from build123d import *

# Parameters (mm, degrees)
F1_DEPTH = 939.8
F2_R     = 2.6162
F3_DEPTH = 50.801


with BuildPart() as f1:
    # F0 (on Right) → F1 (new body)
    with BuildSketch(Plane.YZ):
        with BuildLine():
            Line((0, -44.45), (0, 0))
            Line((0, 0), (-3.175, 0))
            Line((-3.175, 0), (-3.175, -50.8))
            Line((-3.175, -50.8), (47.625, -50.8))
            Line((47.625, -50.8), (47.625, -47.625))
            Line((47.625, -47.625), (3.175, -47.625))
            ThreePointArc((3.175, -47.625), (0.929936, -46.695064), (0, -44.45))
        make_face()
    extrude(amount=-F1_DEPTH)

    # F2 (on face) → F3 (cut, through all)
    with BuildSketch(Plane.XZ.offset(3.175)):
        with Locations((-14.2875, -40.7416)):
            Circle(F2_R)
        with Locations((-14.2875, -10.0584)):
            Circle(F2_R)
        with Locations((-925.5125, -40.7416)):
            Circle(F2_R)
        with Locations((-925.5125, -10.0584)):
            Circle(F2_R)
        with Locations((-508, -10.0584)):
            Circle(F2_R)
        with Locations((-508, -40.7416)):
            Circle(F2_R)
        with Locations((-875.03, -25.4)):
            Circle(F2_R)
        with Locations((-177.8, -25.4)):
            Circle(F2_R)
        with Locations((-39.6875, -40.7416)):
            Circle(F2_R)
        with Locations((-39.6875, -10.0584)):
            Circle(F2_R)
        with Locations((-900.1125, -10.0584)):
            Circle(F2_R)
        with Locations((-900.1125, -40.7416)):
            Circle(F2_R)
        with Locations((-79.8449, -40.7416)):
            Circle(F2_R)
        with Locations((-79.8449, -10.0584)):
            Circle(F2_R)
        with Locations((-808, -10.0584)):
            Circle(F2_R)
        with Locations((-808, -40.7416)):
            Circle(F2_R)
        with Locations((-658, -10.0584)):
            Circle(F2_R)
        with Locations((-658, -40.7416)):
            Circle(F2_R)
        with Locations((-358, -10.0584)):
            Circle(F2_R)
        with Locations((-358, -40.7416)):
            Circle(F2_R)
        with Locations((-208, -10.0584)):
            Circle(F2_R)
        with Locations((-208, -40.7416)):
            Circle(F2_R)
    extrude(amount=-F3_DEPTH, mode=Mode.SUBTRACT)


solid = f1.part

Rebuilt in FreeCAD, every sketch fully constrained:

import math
import FreeCAD as App
import Part
import Sketcher
Q = App.Units.Quantity

doc = App.newDocument("Part")
body = doc.addObject("PartDesign::Body", "Body")

# Sketch on YZ plane
sketch1 = body.newObject("Sketcher::SketchObject", "Sketch")
sketch1.AttachmentSupport = (doc.getObject("YZ_Plane"), [""])
sketch1.MapMode = "FlatFace"
sketch1.addGeometry([
    Part.LineSegment(App.Vector(0, -44.45, 0), App.Vector(0, 0, 0)),  # 0
    Part.LineSegment(App.Vector(0, 0, 0), App.Vector(-3.175, 0, 0)),  # 1
    Part.LineSegment(App.Vector(-3.175, 0, 0), App.Vector(-3.175, -50.8, 0)),  # 2
    Part.LineSegment(App.Vector(-3.175, -50.8, 0), App.Vector(47.625, -50.8, 0)),  # 3
    Part.LineSegment(App.Vector(47.625, -50.8, 0), App.Vector(47.625, -47.625, 0)),  # 4
    Part.LineSegment(App.Vector(47.625, -47.625, 0), App.Vector(3.175, -47.625, 0)),  # 5
    Part.ArcOfCircle(Part.Circle(App.Vector(3.175, -44.45, 0), App.Vector(0, 0, 1), 3.175), math.radians(-179.999998), math.radians(-90.000002)),  # 6
], False)
sketch1.addConstraint([
    Sketcher.Constraint("Coincident", 0, 2, 1, 1),
    Sketcher.Constraint("Coincident", 1, 2, 2, 1),
    Sketcher.Constraint("Coincident", 2, 2, 3, 1),
    Sketcher.Constraint("Coincident", 3, 2, 4, 1),
    Sketcher.Constraint("Coincident", 4, 2, 5, 1),
    Sketcher.Constraint("Tangent", 5, 2, 6, 2),
    Sketcher.Constraint("Tangent", 6, 1, 0, 1),
    Sketcher.Constraint("Vertical", 0),
    Sketcher.Constraint("Horizontal", 1),
    Sketcher.Constraint("Vertical", 2),
    Sketcher.Constraint("Horizontal", 3),
    Sketcher.Constraint("Vertical", 4),
    Sketcher.Constraint("Horizontal", 5),
    Sketcher.Constraint("Coincident", 0, 2, -1, 1),
    Sketcher.Constraint("Equal", 5, 0),
    Sketcher.Constraint("Equal", 3, 2),
    Sketcher.Constraint("DistanceX", 3, 1, 3, 2, Q("2 in")),
    Sketcher.Constraint("Radius", 6, Q("0.125 in")),
    Sketcher.Constraint("DistanceX", 5, 2, 5, 1, Q("1.75 in")),
])
pad1 = body.newObject("PartDesign::Pad", "Pad")
pad1.Profile = sketch1
pad1.Length = Q("37 in")
pad1.Reversed = True

# Sketch on XZ plane
sketch2 = body.newObject("Sketcher::SketchObject", "Sketch001")
sketch2.AttachmentSupport = (doc.getObject("XZ_Plane"), [""])
sketch2.MapMode = "FlatFace"
sketch2.AttachmentOffset = App.Placement(App.Vector(0, 0, 0.125 * 25.4), App.Rotation())
sketch2.addGeometry([
    Part.Circle(App.Vector(-14.2875, -40.7416, 0), App.Vector(0, 0, 1), 2.6162),  # 0
    Part.Circle(App.Vector(-14.2875, -10.0584, 0), App.Vector(0, 0, 1), 2.6162),  # 1
    Part.Circle(App.Vector(-925.5125, -40.7416, 0), App.Vector(0, 0, 1), 2.6162),  # 2
    Part.Circle(App.Vector(-925.5125, -10.0584, 0), App.Vector(0, 0, 1), 2.6162),  # 3
    Part.Circle(App.Vector(-508, -10.0584, 0), App.Vector(0, 0, 1), 2.6162),  # 4
    Part.Circle(App.Vector(-508, -40.7416, 0), App.Vector(0, 0, 1), 2.6162),  # 5
    Part.Circle(App.Vector(-875.03, -25.4, 0), App.Vector(0, 0, 1), 2.6162),  # 6
    Part.Circle(App.Vector(-177.8, -25.4, 0), App.Vector(0, 0, 1), 2.6162),  # 7
    Part.Circle(App.Vector(-39.6875, -40.7416, 0), App.Vector(0, 0, 1), 2.6162),  # 8
    Part.Circle(App.Vector(-39.6875, -10.0584, 0), App.Vector(0, 0, 1), 2.6162),  # 9
    Part.Circle(App.Vector(-900.1125, -10.0584, 0), App.Vector(0, 0, 1), 2.6162),  # 10
    Part.Circle(App.Vector(-900.1125, -40.7416, 0), App.Vector(0, 0, 1), 2.6162),  # 11
    Part.Circle(App.Vector(-79.8449, -40.7416, 0), App.Vector(0, 0, 1), 2.6162),  # 12
    Part.Circle(App.Vector(-79.8449, -10.0584, 0), App.Vector(0, 0, 1), 2.6162),  # 13
    Part.Circle(App.Vector(-808, -10.0584, 0), App.Vector(0, 0, 1), 2.6162),  # 14
    Part.Circle(App.Vector(-808, -40.7416, 0), App.Vector(0, 0, 1), 2.6162),  # 15
    Part.Circle(App.Vector(-658, -10.0584, 0), App.Vector(0, 0, 1), 2.6162),  # 16
    Part.Circle(App.Vector(-658, -40.7416, 0), App.Vector(0, 0, 1), 2.6162),  # 17
    Part.Circle(App.Vector(-358, -10.0584, 0), App.Vector(0, 0, 1), 2.6162),  # 18
    Part.Circle(App.Vector(-358, -40.7416, 0), App.Vector(0, 0, 1), 2.6162),  # 19
    Part.Circle(App.Vector(-208, -10.0584, 0), App.Vector(0, 0, 1), 2.6162),  # 20
    Part.Circle(App.Vector(-208, -40.7416, 0), App.Vector(0, 0, 1), 2.6162),  # 21
], False)
sketch2.addConstraint([
    Sketcher.Constraint("Equal", 0, 1),
    Sketcher.Constraint("Equal", 1, 2),
    Sketcher.Constraint("Equal", 2, 3),
    Sketcher.Constraint("Equal", 3, 4),
    Sketcher.Constraint("Equal", 4, 5),
    Sketcher.Constraint("Equal", 5, 6),
    Sketcher.Constraint("Equal", 6, 7),
    Sketcher.Constraint("Equal", 7, 8),
    Sketcher.Constraint("Equal", 8, 9),
    Sketcher.Constraint("Equal", 9, 10),
    Sketcher.Constraint("Equal", 10, 11),
    Sketcher.Constraint("Equal", 11, 12),
    Sketcher.Constraint("Equal", 12, 13),
    Sketcher.Constraint("Equal", 13, 14),
    Sketcher.Constraint("Equal", 14, 15),
    Sketcher.Constraint("Equal", 15, 16),
    Sketcher.Constraint("Equal", 16, 17),
    Sketcher.Constraint("Equal", 17, 18),
    Sketcher.Constraint("Equal", 18, 19),
    Sketcher.Constraint("Equal", 19, 20),
    Sketcher.Constraint("Equal", 20, 21),
    Sketcher.Constraint("Horizontal", 0, 3, 2, 3),
    Sketcher.Constraint("Horizontal", 1, 3, 3, 3),
    Sketcher.Constraint("Horizontal", 3, 3, 4, 3),
    Sketcher.Constraint("Horizontal", 2, 3, 5, 3),
    Sketcher.Constraint("Horizontal", 6, 3, 7, 3),
    Sketcher.Constraint("Horizontal", 5, 3, 8, 3),
    Sketcher.Constraint("Horizontal", 4, 3, 9, 3),
    Sketcher.Constraint("Horizontal", 9, 3, 10, 3),
    Sketcher.Constraint("Horizontal", 8, 3, 11, 3),
    Sketcher.Constraint("Horizontal", 11, 3, 12, 3),
    Sketcher.Constraint("Horizontal", 10, 3, 13, 3),
    Sketcher.Constraint("Horizontal", 13, 3, 14, 3),
    Sketcher.Constraint("Horizontal", 12, 3, 15, 3),
    Sketcher.Constraint("Horizontal", 14, 3, 16, 3),
    Sketcher.Constraint("Horizontal", 15, 3, 17, 3),
    Sketcher.Constraint("Horizontal", 16, 3, 18, 3),
    Sketcher.Constraint("Horizontal", 17, 3, 19, 3),
    Sketcher.Constraint("Horizontal", 18, 3, 20, 3),
    Sketcher.Constraint("Horizontal", 19, 3, 21, 3),
    Sketcher.Constraint("Vertical", 0, 3, 1, 3),
    Sketcher.Constraint("Vertical", 2, 3, 3, 3),
    Sketcher.Constraint("Vertical", 4, 3, 5, 3),
    Sketcher.Constraint("Vertical", 8, 3, 9, 3),
    Sketcher.Constraint("Vertical", 10, 3, 11, 3),
    Sketcher.Constraint("Vertical", 12, 3, 13, 3),
    Sketcher.Constraint("Vertical", 14, 3, 15, 3),
    Sketcher.Constraint("Vertical", 16, 3, 17, 3),
    Sketcher.Constraint("Vertical", 18, 3, 19, 3),
    Sketcher.Constraint("Vertical", 20, 3, 21, 3),
    Sketcher.Constraint("Diameter", 0, Q("0.206 in")),
    Sketcher.Constraint("DistanceX", 4, 3, -1, 1, Q("20 in")),
    Sketcher.Constraint("DistanceY", 6, 3, -1, 1, Q("1 in")),
    Sketcher.Constraint("DistanceX", 7, 3, -1, 1, Q("7 in")),
    Sketcher.Constraint("DistanceX", 8, 3, 0, 3, Q("1 in")),
    Sketcher.Constraint("DistanceX", 3, 3, 10, 3, Q("1 in")),
    Sketcher.Constraint("DistanceX", 6, 3, -1, 1, Q("34.45 in")),
    Sketcher.Constraint("DistanceX", 0, 3, -1, 1, Q("0.5625 in")),
    Sketcher.Constraint("DistanceY", 0, 3, -1, 1, Q("1.604 in")),
    Sketcher.Constraint("DistanceY", 1, 3, -1, 1, Q("0.396 in")),
    Sketcher.Constraint("DistanceX", 2, 3, -1, 1, Q("36.4375 in")),
    Sketcher.Constraint("DistanceX", 12, 3, 8, 3, Q("1.581 in")),
    Sketcher.Constraint("DistanceX", 14, 3, -1, 1, 808.0),
    Sketcher.Constraint("DistanceX", 16, 3, -1, 1, 658.0),
    Sketcher.Constraint("DistanceX", 18, 3, -1, 1, 358.0),
    Sketcher.Constraint("DistanceX", 20, 3, -1, 1, 208.0),
])
pocket1 = body.newObject("PartDesign::Pocket", "Pocket")
pocket1.Profile = sketch2
pocket1.Type = "ThroughAll"

doc.recompute()
